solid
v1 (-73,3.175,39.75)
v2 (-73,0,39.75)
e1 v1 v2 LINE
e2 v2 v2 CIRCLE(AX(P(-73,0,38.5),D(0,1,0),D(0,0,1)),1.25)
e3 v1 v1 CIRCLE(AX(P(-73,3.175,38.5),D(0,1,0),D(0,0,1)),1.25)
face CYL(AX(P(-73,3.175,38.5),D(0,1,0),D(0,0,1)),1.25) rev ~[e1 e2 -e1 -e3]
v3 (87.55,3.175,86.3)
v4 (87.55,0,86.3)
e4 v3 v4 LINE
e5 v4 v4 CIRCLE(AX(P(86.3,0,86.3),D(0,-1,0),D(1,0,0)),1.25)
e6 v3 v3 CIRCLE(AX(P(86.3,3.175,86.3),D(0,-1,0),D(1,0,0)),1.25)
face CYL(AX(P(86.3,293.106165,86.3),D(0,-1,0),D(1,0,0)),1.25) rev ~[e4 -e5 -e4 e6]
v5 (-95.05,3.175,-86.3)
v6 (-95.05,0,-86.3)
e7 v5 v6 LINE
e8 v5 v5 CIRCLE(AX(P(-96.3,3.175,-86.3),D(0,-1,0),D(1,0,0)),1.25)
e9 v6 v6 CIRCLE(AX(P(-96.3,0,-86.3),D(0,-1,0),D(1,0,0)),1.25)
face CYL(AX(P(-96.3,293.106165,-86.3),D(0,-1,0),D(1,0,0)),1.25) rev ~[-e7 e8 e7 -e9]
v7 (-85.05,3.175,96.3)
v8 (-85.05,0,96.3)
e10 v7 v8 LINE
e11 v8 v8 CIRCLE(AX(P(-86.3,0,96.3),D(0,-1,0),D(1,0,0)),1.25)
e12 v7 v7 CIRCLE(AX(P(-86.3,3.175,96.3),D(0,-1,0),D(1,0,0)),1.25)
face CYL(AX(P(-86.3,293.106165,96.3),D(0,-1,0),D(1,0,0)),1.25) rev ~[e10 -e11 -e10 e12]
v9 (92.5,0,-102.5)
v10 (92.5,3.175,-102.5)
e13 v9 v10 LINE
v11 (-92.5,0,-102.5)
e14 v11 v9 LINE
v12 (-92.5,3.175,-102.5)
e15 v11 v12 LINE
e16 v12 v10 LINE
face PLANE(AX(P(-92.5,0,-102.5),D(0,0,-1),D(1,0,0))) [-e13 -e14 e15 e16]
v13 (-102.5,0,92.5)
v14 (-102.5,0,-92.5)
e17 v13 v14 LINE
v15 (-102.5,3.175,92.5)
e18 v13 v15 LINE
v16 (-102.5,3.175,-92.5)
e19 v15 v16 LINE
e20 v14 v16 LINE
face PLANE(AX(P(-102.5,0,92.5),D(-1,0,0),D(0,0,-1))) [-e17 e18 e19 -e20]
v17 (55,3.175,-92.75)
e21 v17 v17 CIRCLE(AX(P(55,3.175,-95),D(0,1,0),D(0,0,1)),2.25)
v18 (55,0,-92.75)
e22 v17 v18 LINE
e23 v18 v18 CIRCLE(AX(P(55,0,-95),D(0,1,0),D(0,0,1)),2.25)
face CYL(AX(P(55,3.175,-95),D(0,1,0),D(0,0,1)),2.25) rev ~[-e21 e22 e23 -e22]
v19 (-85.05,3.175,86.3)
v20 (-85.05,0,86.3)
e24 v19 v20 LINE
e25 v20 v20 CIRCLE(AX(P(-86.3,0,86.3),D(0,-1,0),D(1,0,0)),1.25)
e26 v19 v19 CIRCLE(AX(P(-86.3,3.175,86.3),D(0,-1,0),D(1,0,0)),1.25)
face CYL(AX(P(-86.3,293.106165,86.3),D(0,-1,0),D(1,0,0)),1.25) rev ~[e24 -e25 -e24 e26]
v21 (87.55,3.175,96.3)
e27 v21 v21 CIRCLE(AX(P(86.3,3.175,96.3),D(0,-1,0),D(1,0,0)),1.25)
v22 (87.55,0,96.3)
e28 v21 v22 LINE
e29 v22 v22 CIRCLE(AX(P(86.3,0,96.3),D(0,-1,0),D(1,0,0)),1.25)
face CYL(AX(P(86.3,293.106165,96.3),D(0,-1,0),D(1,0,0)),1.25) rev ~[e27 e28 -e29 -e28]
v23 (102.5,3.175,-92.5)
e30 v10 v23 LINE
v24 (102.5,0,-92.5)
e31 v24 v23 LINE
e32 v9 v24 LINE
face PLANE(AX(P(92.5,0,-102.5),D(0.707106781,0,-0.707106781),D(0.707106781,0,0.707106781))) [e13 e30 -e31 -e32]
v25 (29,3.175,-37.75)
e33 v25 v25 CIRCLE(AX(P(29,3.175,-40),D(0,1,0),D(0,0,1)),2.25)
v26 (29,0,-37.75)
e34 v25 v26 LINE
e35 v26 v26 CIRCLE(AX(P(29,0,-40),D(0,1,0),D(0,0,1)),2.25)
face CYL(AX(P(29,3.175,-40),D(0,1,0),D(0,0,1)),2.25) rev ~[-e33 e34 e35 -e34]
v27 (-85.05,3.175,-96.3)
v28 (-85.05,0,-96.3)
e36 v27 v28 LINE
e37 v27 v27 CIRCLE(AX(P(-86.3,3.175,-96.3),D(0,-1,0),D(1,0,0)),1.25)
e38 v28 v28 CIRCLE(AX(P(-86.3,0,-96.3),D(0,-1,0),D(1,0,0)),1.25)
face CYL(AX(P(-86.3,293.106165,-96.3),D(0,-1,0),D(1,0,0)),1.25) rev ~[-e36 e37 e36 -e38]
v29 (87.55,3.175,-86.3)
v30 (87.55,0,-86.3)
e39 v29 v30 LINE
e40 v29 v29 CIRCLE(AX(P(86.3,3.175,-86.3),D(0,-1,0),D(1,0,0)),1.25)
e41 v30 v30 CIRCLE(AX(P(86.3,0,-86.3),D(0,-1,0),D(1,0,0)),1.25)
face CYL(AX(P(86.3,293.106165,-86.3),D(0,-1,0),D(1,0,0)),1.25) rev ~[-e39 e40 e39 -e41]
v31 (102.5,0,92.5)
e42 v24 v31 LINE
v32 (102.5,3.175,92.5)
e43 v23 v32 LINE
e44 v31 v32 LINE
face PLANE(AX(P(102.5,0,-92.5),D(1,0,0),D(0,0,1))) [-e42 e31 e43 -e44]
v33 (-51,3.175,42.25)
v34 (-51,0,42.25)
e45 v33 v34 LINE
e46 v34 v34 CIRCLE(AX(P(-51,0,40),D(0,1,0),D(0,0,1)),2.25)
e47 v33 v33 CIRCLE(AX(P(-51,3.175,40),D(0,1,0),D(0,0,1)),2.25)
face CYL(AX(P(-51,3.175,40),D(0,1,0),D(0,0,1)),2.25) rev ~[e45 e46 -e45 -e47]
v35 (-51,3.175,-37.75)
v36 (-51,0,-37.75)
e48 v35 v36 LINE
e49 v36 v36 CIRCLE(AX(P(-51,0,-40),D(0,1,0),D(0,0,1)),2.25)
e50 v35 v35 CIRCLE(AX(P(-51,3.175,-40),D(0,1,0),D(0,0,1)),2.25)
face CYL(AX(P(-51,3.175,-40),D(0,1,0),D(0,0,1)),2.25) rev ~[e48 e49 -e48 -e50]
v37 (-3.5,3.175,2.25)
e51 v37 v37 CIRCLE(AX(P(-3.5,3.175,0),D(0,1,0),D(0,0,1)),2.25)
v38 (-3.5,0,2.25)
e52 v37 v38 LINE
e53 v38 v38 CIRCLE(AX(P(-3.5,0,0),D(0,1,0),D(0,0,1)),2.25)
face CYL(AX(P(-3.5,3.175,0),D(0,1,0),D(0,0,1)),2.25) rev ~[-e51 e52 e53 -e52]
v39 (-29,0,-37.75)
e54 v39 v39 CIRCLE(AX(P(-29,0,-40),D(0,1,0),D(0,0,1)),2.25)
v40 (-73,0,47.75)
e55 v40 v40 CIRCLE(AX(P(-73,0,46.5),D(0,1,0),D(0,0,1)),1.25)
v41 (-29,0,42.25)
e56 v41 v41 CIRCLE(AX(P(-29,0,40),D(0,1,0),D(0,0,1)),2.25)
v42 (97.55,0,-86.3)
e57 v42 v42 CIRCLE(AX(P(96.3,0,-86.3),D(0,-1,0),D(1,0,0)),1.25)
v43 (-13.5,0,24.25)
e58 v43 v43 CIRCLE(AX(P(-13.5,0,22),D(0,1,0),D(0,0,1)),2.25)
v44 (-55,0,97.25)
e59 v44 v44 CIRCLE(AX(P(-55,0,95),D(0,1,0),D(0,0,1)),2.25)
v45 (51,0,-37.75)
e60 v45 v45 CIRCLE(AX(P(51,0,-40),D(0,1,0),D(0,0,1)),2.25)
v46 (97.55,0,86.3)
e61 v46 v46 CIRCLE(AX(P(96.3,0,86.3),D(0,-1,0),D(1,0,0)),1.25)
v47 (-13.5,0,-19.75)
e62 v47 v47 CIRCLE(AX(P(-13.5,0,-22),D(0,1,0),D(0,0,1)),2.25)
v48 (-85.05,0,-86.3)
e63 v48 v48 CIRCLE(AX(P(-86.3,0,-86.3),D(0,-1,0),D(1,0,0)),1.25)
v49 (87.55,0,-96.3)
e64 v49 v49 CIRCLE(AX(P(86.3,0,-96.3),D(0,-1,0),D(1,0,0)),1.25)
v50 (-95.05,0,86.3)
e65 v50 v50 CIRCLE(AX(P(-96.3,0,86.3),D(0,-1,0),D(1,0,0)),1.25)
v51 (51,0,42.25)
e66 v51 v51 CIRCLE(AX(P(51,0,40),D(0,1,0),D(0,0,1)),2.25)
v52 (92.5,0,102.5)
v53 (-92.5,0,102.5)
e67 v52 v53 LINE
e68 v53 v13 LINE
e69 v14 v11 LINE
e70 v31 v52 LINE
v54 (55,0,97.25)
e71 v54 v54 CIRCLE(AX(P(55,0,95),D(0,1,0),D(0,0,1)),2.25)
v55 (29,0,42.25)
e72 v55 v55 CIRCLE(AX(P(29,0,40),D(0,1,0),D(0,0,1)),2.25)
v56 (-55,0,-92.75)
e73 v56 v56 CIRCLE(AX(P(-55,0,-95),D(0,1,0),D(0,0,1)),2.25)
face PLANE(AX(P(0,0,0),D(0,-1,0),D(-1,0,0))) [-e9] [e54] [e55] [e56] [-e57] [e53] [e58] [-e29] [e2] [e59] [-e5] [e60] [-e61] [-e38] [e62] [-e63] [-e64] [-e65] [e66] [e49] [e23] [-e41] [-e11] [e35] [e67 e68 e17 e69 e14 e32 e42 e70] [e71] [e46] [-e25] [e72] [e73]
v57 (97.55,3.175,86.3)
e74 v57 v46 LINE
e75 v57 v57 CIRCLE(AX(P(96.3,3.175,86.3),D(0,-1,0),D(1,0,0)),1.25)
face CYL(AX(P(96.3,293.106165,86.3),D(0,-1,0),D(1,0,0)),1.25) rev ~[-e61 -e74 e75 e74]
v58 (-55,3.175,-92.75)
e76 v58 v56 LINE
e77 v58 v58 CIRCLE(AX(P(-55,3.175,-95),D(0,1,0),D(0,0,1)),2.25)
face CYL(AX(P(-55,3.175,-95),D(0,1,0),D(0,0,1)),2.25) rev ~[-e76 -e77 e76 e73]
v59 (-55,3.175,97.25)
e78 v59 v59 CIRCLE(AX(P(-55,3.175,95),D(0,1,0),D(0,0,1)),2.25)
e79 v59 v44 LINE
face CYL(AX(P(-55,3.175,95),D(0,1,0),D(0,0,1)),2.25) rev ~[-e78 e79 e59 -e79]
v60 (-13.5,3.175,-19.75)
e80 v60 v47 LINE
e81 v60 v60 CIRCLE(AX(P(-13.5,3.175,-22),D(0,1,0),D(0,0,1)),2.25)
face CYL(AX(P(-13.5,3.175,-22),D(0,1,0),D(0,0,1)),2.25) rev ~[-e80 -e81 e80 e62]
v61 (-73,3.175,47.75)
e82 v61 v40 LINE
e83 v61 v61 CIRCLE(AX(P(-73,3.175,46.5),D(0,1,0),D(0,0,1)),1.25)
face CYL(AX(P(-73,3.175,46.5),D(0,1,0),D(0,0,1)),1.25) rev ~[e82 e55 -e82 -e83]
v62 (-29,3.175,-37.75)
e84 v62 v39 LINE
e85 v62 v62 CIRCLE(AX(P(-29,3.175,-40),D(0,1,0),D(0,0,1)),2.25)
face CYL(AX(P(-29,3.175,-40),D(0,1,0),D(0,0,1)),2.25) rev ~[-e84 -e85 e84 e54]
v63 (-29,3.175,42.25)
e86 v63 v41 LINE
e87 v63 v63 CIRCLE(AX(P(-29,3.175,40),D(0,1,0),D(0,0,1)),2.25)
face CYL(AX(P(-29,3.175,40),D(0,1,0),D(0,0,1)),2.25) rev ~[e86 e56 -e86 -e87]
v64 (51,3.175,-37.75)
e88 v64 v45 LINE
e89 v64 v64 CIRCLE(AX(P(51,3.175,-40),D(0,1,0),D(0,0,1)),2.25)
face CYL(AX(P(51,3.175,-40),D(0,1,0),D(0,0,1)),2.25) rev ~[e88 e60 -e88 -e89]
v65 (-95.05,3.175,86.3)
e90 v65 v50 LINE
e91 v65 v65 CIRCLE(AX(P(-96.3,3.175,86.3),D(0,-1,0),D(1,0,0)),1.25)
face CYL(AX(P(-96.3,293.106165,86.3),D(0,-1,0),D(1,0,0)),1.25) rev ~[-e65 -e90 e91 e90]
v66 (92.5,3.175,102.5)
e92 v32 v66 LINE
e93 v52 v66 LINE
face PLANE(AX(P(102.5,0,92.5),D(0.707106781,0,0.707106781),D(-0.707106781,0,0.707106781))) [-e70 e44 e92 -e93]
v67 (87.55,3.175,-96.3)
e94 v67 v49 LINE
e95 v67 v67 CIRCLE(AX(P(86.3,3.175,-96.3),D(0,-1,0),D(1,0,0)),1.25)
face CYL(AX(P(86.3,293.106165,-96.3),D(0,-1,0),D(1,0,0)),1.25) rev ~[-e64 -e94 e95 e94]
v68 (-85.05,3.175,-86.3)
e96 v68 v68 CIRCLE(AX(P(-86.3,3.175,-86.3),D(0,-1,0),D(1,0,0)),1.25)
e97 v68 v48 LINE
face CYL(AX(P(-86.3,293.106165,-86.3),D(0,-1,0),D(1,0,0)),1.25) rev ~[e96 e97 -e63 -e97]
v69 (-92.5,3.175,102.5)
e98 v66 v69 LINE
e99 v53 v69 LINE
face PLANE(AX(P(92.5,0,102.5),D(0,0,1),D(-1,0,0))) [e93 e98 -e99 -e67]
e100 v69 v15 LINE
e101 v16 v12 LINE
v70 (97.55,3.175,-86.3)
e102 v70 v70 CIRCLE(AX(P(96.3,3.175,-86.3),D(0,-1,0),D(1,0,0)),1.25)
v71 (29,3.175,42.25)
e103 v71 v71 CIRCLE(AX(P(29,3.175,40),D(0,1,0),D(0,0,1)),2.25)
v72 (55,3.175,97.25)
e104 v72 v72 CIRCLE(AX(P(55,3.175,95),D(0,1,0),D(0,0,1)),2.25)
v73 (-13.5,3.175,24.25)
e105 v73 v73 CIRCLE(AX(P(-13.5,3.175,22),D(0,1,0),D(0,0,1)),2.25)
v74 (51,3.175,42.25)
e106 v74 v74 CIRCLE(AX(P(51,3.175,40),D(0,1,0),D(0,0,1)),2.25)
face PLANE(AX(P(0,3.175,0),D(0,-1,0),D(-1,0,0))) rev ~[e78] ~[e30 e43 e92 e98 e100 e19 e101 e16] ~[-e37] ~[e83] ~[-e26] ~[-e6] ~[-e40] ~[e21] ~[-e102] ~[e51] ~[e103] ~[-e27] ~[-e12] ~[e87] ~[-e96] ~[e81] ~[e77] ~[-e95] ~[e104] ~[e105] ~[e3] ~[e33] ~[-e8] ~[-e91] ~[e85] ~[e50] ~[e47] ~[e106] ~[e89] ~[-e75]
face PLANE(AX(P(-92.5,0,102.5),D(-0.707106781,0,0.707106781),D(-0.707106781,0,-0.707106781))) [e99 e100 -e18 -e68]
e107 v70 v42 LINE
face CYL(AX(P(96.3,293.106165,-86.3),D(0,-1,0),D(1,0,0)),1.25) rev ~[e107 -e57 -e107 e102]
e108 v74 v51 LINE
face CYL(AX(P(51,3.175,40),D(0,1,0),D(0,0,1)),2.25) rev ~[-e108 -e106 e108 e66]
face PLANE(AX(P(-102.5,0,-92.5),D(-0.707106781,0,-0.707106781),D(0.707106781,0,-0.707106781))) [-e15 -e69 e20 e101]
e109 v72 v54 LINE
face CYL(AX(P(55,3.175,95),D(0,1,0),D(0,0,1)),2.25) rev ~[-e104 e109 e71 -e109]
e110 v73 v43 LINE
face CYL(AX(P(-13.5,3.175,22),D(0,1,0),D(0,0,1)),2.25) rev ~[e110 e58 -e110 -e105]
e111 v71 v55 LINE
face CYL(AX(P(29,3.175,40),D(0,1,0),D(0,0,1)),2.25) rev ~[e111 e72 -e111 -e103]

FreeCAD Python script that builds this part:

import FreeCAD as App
import Part
import Sketcher
Q = App.Units.Quantity


def add_polygon(sketch, points):
    """Adds a closed chain of lines whose ends are joined by coincident constraints."""
    first, n = sketch.GeometryCount, len(points)
    for a, b in zip(points, points[1:] + points[:1]):
        sketch.addGeometry(Part.LineSegment(App.Vector(*a, 0), App.Vector(*b, 0)), False)
    for i in range(n):
        sketch.addConstraint(Sketcher.Constraint("Coincident", first + i, 2, first + (i + 1) % n, 1))

doc = App.newDocument("Part")
params = doc.addObject("Spreadsheet::Sheet", "Params")
for row, (alias, value) in enumerate([
    ("sketch1_width", "185 mm"),
    ("pad1_length", "3.175 mm"),
    ("sketch2_diameter", "4.5 mm"),
    ("sketch3_diameter", "2.5 mm"),
    ("hole_diameter", "2.5 mm"),
    ("sketch4_diameter", "4.5 mm"),
    ("sketch5_diameter", "2.5 mm"),
    ("pocket3_length", "10 mm"),
], start=1):
    params.set(f"A{row}", alias)
    params.set(f"B{row}", "=" + value)
    params.setAlias(f"B{row}", alias)

body = doc.addObject("PartDesign::Body", "Body")

sketch1 = body.newObject("Sketcher::SketchObject", "Sketch")
sketch1.AttachmentSupport = (doc.getObject("XZ_Plane"), [""])
sketch1.MapMode = "FlatFace"
add_polygon(sketch1, [(92, -102), (-92, -102), (-102, -92), (-102, 92), (-92, 102), (92, 102), (102, 92), (102, -92)])
sketch1.addConstraint([
    Sketcher.Constraint("Horizontal", 0),
    Sketcher.Constraint("Vertical", 2),
    Sketcher.Constraint("Horizontal", 4),
    Sketcher.Constraint("Vertical", 6),
    Sketcher.Constraint("Symmetric", 0, 2, 4, 2, -1, 1),
    Sketcher.Constraint("Symmetric", 1, 2, 5, 2, -1, 1),
    Sketcher.Constraint("Perpendicular", 1, 3),
    Sketcher.Constraint("Perpendicular", 5, 7),
    Sketcher.Constraint("Horizontal", 2, 2, 5, 2),
    Sketcher.Constraint("Horizontal", 1, 2, 6, 2),
    Sketcher.Constraint("Vertical", 0, 2, 3, 2),
    Sketcher.Constraint("Equal", 4, 2),
    Sketcher.Constraint("DistanceX", 0, 2, 0, 1, Q("185 mm")),
    Sketcher.Constraint("DistanceX", 1, 2, 0, 2, Q("10 mm")),
])
sketch1.setExpression("Constraints[20]", "Params.sketch1_width")
pad1 = body.newObject("PartDesign::Pad", "Pad")
pad1.Profile = sketch1
pad1.setExpression("Length", "Params.pad1_length")
pad1.Reversed = True

sketch2 = body.newObject("Sketcher::SketchObject", "Sketch001")
sketch2.AttachmentSupport = (doc.getObject("XZ_Plane"), [""])
sketch2.MapMode = "FlatFace"
sketch2.AttachmentOffset = App.Placement(App.Vector(0, 0, -3.175), App.Rotation())
sketch2.addGeometry([
    Part.Circle(App.Vector(-51, 40, 0), App.Vector(0, 0, 1), 2.2),
    Part.Circle(App.Vector(-29, 40, 0), App.Vector(0, 0, 1), 2.2),
    Part.Circle(App.Vector(-51, -40, 0), App.Vector(0, 0, 1), 2.2),
    Part.Circle(App.Vector(-29, -40, 0), App.Vector(0, 0, 1), 2.2),
    Part.Circle(App.Vector(29, -40, 0), App.Vector(0, 0, 1), 2.2),
    Part.Circle(App.Vector(51, -40, 0), App.Vector(0, 0, 1), 2.2),
    Part.Circle(App.Vector(29, 40, 0), App.Vector(0, 0, 1), 2.2),
    Part.Circle(App.Vector(51, 40, 0), App.Vector(0, 0, 1), 2.2),
    Part.Circle(App.Vector(-3.5, 0, 0), App.Vector(0, 0, 1), 2.2),
    Part.Circle(App.Vector(-13.5, -22, 0), App.Vector(0, 0, 1), 2.2),
    Part.Circle(App.Vector(-13.5, 22, 0), App.Vector(0, 0, 1), 2.2),
], False)
sketch2.addConstraint([
    Sketcher.Constraint("Equal", 0, 1),
    Sketcher.Constraint("Equal", 1, 2),
    Sketcher.Constraint("Equal", 2, 3),
    Sketcher.Constraint("Equal", 3, 4),
    Sketcher.Constraint("Equal", 4, 5),
    Sketcher.Constraint("Equal", 5, 6),
    Sketcher.Constraint("Equal", 6, 7),
    Sketcher.Constraint("Equal", 7, 8),
    Sketcher.Constraint("Equal", 8, 9),
    Sketcher.Constraint("Equal", 9, 10),
    Sketcher.Constraint("Symmetric", 1, 3, 4, 3, -1, 1),
    Sketcher.Constraint("Symmetric", 0, 3, 5, 3, -1, 1),
    Sketcher.Constraint("Symmetric", 3, 3, 6, 3, -1, 1),
    Sketcher.Constraint("Symmetric", 2, 3, 7, 3, -1, 1),
    Sketcher.Constraint("Symmetric", 3, 3, 4, 3, -2),
    Sketcher.Constraint("Symmetric", 2, 3, 5, 3, -2),
    Sketcher.Constraint("Symmetric", 9, 3, 10, 3, -1),
    Sketcher.Constraint("PointOnObject", 8, 3, -1),
    Sketcher.Constraint("Horizontal", 0, 3, 1, 3),
    Sketcher.Constraint("Diameter", 0, Q("4.5 mm")),
    Sketcher.Constraint("DistanceX", 0, 3, -1, 1, Q("51 mm")),
    Sketcher.Constraint("DistanceY", -1, 1, 0, 3, Q("40 mm")),
    Sketcher.Constraint("DistanceX", 1, 3, -1, 1, Q("29 mm")),
    Sketcher.Constraint("DistanceY", 9, 3, -1, 1, Q("22 mm")),
    Sketcher.Constraint("DistanceX", 9, 3, 8, 3, Q("10 mm")),
    Sketcher.Constraint("DistanceX", 8, 3, -1, 1, Q("3.5 mm")),
])
sketch2.setExpression("Constraints[19]", "Params.sketch2_diameter")
pocket1 = body.newObject("PartDesign::Pocket", "Pocket")
pocket1.Profile = sketch2
pocket1.Type = "ThroughAll"
pocket1.Reversed = True

sketch3 = body.newObject("Sketcher::SketchObject", "Sketch002")
sketch3.AttachmentSupport = (doc.getObject("XZ_Plane"), [""])
sketch3.MapMode = "FlatFace"
sketch3.AttachmentOffset = App.Placement(App.Vector(0, 0, -3.175), App.Rotation())
sketch3.addGeometry([
    Part.Circle(App.Vector(-96.3, -86.3, 0), App.Vector(0, 0, 1), 1.2),
    Part.Circle(App.Vector(-86.3, -96.3, 0), App.Vector(0, 0, 1), 1.2),
    Part.Circle(App.Vector(86.3, -96.3, 0), App.Vector(0, 0, 1), 1.2),
    Part.Circle(App.Vector(96.3, -86.3, 0), App.Vector(0, 0, 1), 1.2),
    Part.Circle(App.Vector(96.3, 86.3, 0), App.Vector(0, 0, 1), 1.2),
    Part.Circle(App.Vector(86.3, 96.3, 0), App.Vector(0, 0, 1), 1.2),
    Part.Circle(App.Vector(-86.3, 96.3, 0), App.Vector(0, 0, 1), 1.2),
    Part.Circle(App.Vector(-96.3, 86.3, 0), App.Vector(0, 0, 1), 1.2),
    Part.Circle(App.Vector(86.3, 86.3, 0), App.Vector(0, 0, 1), 1.2),
    Part.Circle(App.Vector(86.3, -86.3, 0), App.Vector(0, 0, 1), 1.2),
    Part.Circle(App.Vector(-86.3, -86.3, 0), App.Vector(0, 0, 1), 1.2),
    Part.Circle(App.Vector(-86.3, 86.3, 0), App.Vector(0, 0, 1), 1.2),
], False)
sketch3.addConstraint([
    Sketcher.Constraint("Equal", 0, 1),
    Sketcher.Constraint("Equal", 1, 2),
    Sketcher.Constraint("Equal", 2, 3),
    Sketcher.Constraint("Equal", 3, 4),
    Sketcher.Constraint("Equal", 4, 5),
    Sketcher.Constraint("Equal", 5, 6),
    Sketcher.Constraint("Equal", 6, 7),
    Sketcher.Constraint("Equal", 7, 8),
    Sketcher.Constraint("Equal", 8, 9),
    Sketcher.Constraint("Equal", 9, 10),
    Sketcher.Constraint("Equal", 10, 11),
    Sketcher.Constraint("Symmetric", 0, 3, 4, 3, -1, 1),
    Sketcher.Constraint("Symmetric", 1, 3, 5, 3, -1, 1),
    Sketcher.Constraint("Symmetric", 2, 3, 6, 3, -1, 1),
    Sketcher.Constraint("Symmetric", 3, 3, 7, 3, -1, 1),
    Sketcher.Constraint("Symmetric", 8, 3, 10, 3, -1, 1),
    Sketcher.Constraint("Symmetric", 9, 3, 11, 3, -1, 1),
    Sketcher.Constraint("Symmetric", 1, 3, 2, 3, -2),
    Sketcher.Constraint("Symmetric", 0, 3, 3, 3, -2),
    Sketcher.Constraint("Symmetric", 9, 3, 10, 3, -2),
    Sketcher.Constraint("Horizontal", 7, 3, 8, 3),
    Sketcher.Constraint("Vertical", 5, 3, 8, 3),
    Sketcher.Constraint("Diameter", 0, Q("2.5 mm")),
    Sketcher.Constraint("DistanceX", 0, 3, 1, 3, Q("10 mm")),
    Sketcher.Constraint("DistanceY", 1, 3, 0, 3, Q("10 mm")),
    Sketcher.Constraint("DistanceX", 0, 3, -1, 1, Q("96.3 mm")),
    Sketcher.Constraint("DistanceY", 0, 3, -1, 1, Q("86.3 mm")),
])
sketch3.setExpression("Constraints[22]", "Params.sketch3_diameter")
doc.recompute()
hole = body.newObject("PartDesign::Hole", "Hole")
hole.Profile = sketch3
hole.ThreadType = "None"
hole.setExpression("Diameter", "Params.hole_diameter")
hole.DepthType = "ThroughAll"
hole.Reversed = True

sketch4 = body.newObject("Sketcher::SketchObject", "Sketch003")
sketch4.AttachmentSupport = (doc.getObject("XZ_Plane"), [""])
sketch4.MapMode = "FlatFace"
sketch4.AttachmentOffset = App.Placement(App.Vector(0, 0, -3.175), App.Rotation())
sketch4.addGeometry([
    Part.Circle(App.Vector(-55, -95, 0), App.Vector(0, 0, 1), 2.2),
    Part.Circle(App.Vector(55, -95, 0), App.Vector(0, 0, 1), 2.2),
    Part.Circle(App.Vector(-55, 95, 0), App.Vector(0, 0, 1), 2.2),
    Part.Circle(App.Vector(55, 95, 0), App.Vector(0, 0, 1), 2.2),
], False)
sketch4.addConstraint([
    Sketcher.Constraint("Equal", 0, 1),
    Sketcher.Constraint("Equal", 1, 2),
    Sketcher.Constraint("Equal", 2, 3),
    Sketcher.Constraint("Symmetric", 1, 3, 2, 3, -1, 1),
    Sketcher.Constraint("Symmetric", 0, 3, 3, 3, -1, 1),
    Sketcher.Constraint("Symmetric", 0, 3, 1, 3, -2),
    Sketcher.Constraint("Diameter", 0, Q("4.5 mm")),
    Sketcher.Constraint("DistanceX", 0, 3, -1, 1, Q("55 mm")),
    Sketcher.Constraint("DistanceY", 0, 3, -1, 1, Q("95 mm")),
])
sketch4.setExpression("Constraints[6]", "Params.sketch4_diameter")
pocket2 = body.newObject("PartDesign::Pocket", "Pocket001")
pocket2.Profile = sketch4
pocket2.Type = "ThroughAll"
pocket2.Reversed = True

sketch5 = body.newObject("Sketcher::SketchObject", "Sketch004")
sketch5.AttachmentSupport = (doc.getObject("XZ_Plane"), [""])
sketch5.MapMode = "FlatFace"
sketch5.AttachmentOffset = App.Placement(App.Vector(0, 0, -3.175), App.Rotation())
sketch5.addGeometry([
    Part.Circle(App.Vector(-73, 46.5, 0), App.Vector(0, 0, 1), 1.2),
    Part.Circle(App.Vector(-73, 38.5, 0), App.Vector(0, 0, 1), 1.2),
], False)
sketch5.addConstraint([
    Sketcher.Constraint("Equal", 0, 1),
    Sketcher.Constraint("Vertical", 0, 3, 1, 3),
    Sketcher.Constraint("Diameter", 0, Q("2.5 mm")),
    Sketcher.Constraint("DistanceX", 0, 3, -1, 1, Q("73 mm")),
    Sketcher.Constraint("DistanceY", 1, 3, 0, 3, Q("8 mm")),
    Sketcher.Constraint("DistanceY", -1, 1, 0, 3, Q("46.5 mm")),
])
sketch5.setExpression("Constraints[2]", "Params.sketch5_diameter")
pocket3 = body.newObject("PartDesign::Pocket", "Pocket002")
pocket3.Profile = sketch5
pocket3.setExpression("Length", "Params.pocket3_length")
pocket3.Reversed = True

doc.recompute()
